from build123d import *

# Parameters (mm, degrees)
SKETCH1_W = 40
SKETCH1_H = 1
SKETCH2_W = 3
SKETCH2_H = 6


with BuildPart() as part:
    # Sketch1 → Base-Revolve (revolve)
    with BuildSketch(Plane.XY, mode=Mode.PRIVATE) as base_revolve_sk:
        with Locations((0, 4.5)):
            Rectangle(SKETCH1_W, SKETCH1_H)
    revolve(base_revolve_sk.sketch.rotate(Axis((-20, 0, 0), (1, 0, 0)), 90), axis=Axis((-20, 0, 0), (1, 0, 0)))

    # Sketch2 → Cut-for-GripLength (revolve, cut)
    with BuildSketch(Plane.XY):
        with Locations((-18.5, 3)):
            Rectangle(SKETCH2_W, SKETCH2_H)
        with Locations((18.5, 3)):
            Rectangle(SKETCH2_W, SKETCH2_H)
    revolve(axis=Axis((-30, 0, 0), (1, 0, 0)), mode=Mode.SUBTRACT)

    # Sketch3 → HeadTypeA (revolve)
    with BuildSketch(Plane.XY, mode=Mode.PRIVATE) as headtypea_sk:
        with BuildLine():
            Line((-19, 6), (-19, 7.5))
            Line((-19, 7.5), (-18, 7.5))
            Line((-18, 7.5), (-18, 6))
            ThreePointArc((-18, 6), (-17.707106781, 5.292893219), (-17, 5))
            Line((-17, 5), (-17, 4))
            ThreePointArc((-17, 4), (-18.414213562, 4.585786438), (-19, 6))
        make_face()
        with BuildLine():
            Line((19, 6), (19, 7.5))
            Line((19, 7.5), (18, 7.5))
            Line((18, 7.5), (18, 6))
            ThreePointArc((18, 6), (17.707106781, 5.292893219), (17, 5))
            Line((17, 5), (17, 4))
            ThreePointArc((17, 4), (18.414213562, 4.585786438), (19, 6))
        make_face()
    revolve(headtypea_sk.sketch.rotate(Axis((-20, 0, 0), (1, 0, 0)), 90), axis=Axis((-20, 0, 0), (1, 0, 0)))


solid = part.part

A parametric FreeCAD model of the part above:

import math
import FreeCAD as App
import Part
import Sketcher
Q = App.Units.Quantity

doc = App.newDocument("Part")
body = doc.addObject("PartDesign::Body", "Body")

sketch1 = doc.addObject("Sketcher::SketchObject", "Sketch")
body.addObject(sketch1)
sketch1.AttachmentSupport = (doc.XY_Plane, [""])
sketch1.MapMode = "FlatFace"
sketch1.addGeometry([
    Part.LineSegment(App.Vector(-20, 5, 0), App.Vector(-20, 4, 0)),
    Part.LineSegment(App.Vector(-20, 4, 0), App.Vector(20, 4, 0)),
    Part.LineSegment(App.Vector(20, 4, 0), App.Vector(20, 5, 0)),
    Part.LineSegment(App.Vector(20, 5, 0), App.Vector(-20, 5, 0)),
], False)
sketch1.addConstraint([
    Sketcher.Constraint("Coincident", 0, 2, 1, 1),
    Sketcher.Constraint("Coincident", 1, 2, 2, 1),
    Sketcher.Constraint("Coincident", 2, 2, 3, 1),
    Sketcher.Constraint("Coincident", 3, 2, 0, 1),
    Sketcher.Constraint("Vertical", 0),
    Sketcher.Constraint("Horizontal", 1),
    Sketcher.Constraint("Vertical", 2),
    Sketcher.Constraint("Horizontal", 3),
    Sketcher.Constraint("DistanceX", 1, 1, 1, 2, Q("40 mm")),
    Sketcher.Constraint("DistanceY", 0, 2, 0, 1, Q("1 mm")),
    Sketcher.Constraint("DistanceX", 0, 2, -1, 1, Q("20 mm")),
    Sketcher.Constraint("DistanceY", -1, 1, 0, 2, Q("4 mm")),
])
revolution = doc.addObject("PartDesign::Revolution", "Revolution")
body.addObject(revolution)
revolution.Profile = sketch1
revolution.ReferenceAxis = (sketch1, ["H_Axis"])
revolution.Angle = 360

sketch2 = doc.addObject("Sketcher::SketchObject", "Sketch001")
body.addObject(sketch2)
sketch2.AttachmentSupport = (doc.XY_Plane, [""])
sketch2.MapMode = "FlatFace"
sketch2.addGeometry([
    Part.LineSegment(App.Vector(-20, 6, 0), App.Vector(-20, 0, 0)),
    Part.LineSegment(App.Vector(-20, 0, 0), App.Vector(-17, 0, 0)),
    Part.LineSegment(App.Vector(-17, 0, 0), App.Vector(-17, 6, 0)),
    Part.LineSegment(App.Vector(-17, 6, 0), App.Vector(-20, 6, 0)),
    Part.LineSegment(App.Vector(17, 6, 0), App.Vector(17, 0, 0)),
    Part.LineSegment(App.Vector(17, 0, 0), App.Vector(20, 0, 0)),
    Part.LineSegment(App.Vector(20, 0, 0), App.Vector(20, 6, 0)),
    Part.LineSegment(App.Vector(20, 6, 0), App.Vector(17, 6, 0)),
], False)
sketch2.addConstraint([
    Sketcher.Constraint("Coincident", 0, 2, 1, 1),
    Sketcher.Constraint("Coincident", 1, 2, 2, 1),
    Sketcher.Constraint("Coincident", 2, 2, 3, 1),
    Sketcher.Constraint("Coincident", 3, 2, 0, 1),
    Sketcher.Constraint("Coincident", 4, 2, 5, 1),
    Sketcher.Constraint("Coincident", 5, 2, 6, 1),
    Sketcher.Constraint("Coincident", 6, 2, 7, 1),
    Sketcher.Constraint("Coincident", 7, 2, 4, 1),
    Sketcher.Constraint("Vertical", 0),
    Sketcher.Constraint("Horizontal", 1),
    Sketcher.Constraint("Vertical", 2),
    Sketcher.Constraint("Horizontal", 3),
    Sketcher.Constraint("Vertical", 4),
    Sketcher.Constraint("Horizontal", 5),
    Sketcher.Constraint("Vertical", 6),
    Sketcher.Constraint("Horizontal", 7),
    Sketcher.Constraint("Symmetric", 1, 2, 4, 2, -1, 1),
    Sketcher.Constraint("Symmetric", 0, 2, 5, 2, -2),
    Sketcher.Constraint("Horizontal", 3, 2, 6, 2),
    Sketcher.Constraint("DistanceX", 1, 1, 1, 2, Q("3 mm")),
    Sketcher.Constraint("DistanceY", 0, 2, 0, 1, Q("6 mm")),
    Sketcher.Constraint("DistanceX", 0, 2, -1, 1, Q("20 mm")),
])
groove = doc.addObject("PartDesign::Groove", "Groove")
body.addObject(groove)
groove.Profile = sketch2
groove.ReferenceAxis = (sketch2, ["H_Axis"])
groove.Angle = 360

sketch3 = doc.addObject("Sketcher::SketchObject", "Sketch002")
body.addObject(sketch3)
sketch3.AttachmentSupport = (doc.XY_Plane, [""])
sketch3.MapMode = "FlatFace"
sketch3.addGeometry([
    Part.LineSegment(App.Vector(-19, 7.5, 0), App.Vector(-19, 6, 0)),
    Part.ArcOfCircle(Part.Circle(App.Vector(-17, 6, 0), App.Vector(0, 0, 1), 2), math.radians(-180), math.radians(-90)),
    Part.LineSegment(App.Vector(-17, 4, 0), App.Vector(-17, 5, 0)),
    Part.ArcOfCircle(Part.Circle(App.Vector(-17, 6, 0), App.Vector(0, 0, 1), 1), math.radians(-180), math.radians(-90)),
    Part.LineSegment(App.Vector(-18, 6, 0), App.Vector(-18, 7.5, 0)),
    Part.LineSegment(App.Vector(-18, 7.5, 0), App.Vector(-19, 7.5, 0)),
    Part.LineSegment(App.Vector(19, 6, 0), App.Vector(19, 7.5, 0)),
    Part.LineSegment(App.Vector(19, 7.5, 0), App.Vector(18, 7.5, 0)),
    Part.LineSegment(App.Vector(18, 7.5, 0), App.Vector(18, 6, 0)),
    Part.ArcOfCircle(Part.Circle(App.Vector(17, 6, 0), App.Vector(0, 0, 1), 1), math.radians(-90), math.radians(0)),
    Part.LineSegment(App.Vector(17, 5, 0), App.Vector(17, 4, 0)),
    Part.ArcOfCircle(Part.Circle(App.Vector(17, 6, 0), App.Vector(0, 0, 1), 2), math.radians(-90), math.radians(0)),
], False)
sketch3.addConstraint([
    Sketcher.Constraint("Tangent", 0, 2, 1, 1),
    Sketcher.Constraint("Coincident", 1, 2, 2, 1),
    Sketcher.Constraint("Coincident", 2, 2, 3, 2),
    Sketcher.Constraint("Tangent", 3, 1, 4, 1),
    Sketcher.Constraint("Coincident", 4, 2, 5, 1),
    Sketcher.Constraint("Coincident", 5, 2, 0, 1),
    Sketcher.Constraint("Coincident", 6, 2, 7, 1),
    Sketcher.Constraint("Coincident", 7, 2, 8, 1),
    Sketcher.Constraint("Tangent", 8, 2, 9, 2),
    Sketcher.Constraint("Coincident", 9, 1, 10, 1),
    Sketcher.Constraint("Coincident", 10, 2, 11, 1),
    Sketcher.Constraint("Tangent", 11, 2, 6, 1),
    Sketcher.Constraint("Vertical", 0),
    Sketcher.Constraint("Vertical", 2),
    Sketcher.Constraint("Vertical", 4),
    Sketcher.Constraint("Horizontal", 5),
    Sketcher.Constraint("Vertical", 6),
    Sketcher.Constraint("Horizontal", 7),
    Sketcher.Constraint("Vertical", 8),
    Sketcher.Constraint("Vertical", 10),
    Sketcher.Constraint("Coincident", 3, 3, 1, 3),
    Sketcher.Constraint("Coincident", 11, 3, 9, 3),
    Sketcher.Constraint("Equal", 3, 9),
    Sketcher.Constraint("Equal", 1, 11),
    Sketcher.Constraint("Symmetric", 1, 3, 9, 3, -2),
    Sketcher.Constraint("Horizontal", 5, 2, 6, 2),
    Sketcher.Constraint("Vertical", 3, 3, 1, 2),
    Sketcher.Constraint("Vertical", 11, 3, 9, 1),
    Sketcher.Constraint("Radius", 1, Q("2 mm")),
    Sketcher.Constraint("Radius", 3, Q("1 mm")),
    Sketcher.Constraint("DistanceY", 0, 2, 0, 1, Q("1.5 mm")),
    Sketcher.Constraint("DistanceX", 1, 3, -1, 1, Q("17 mm")),
    Sketcher.Constraint("DistanceY", -1, 1, 1, 3, Q("6 mm")),
])
revolution2 = doc.addObject("PartDesign::Revolution", "Revolution001")
body.addObject(revolution2)
revolution2.Profile = sketch3
revolution2.ReferenceAxis = (sketch3, ["H_Axis"])
revolution2.Angle = 360

doc.recompute()
